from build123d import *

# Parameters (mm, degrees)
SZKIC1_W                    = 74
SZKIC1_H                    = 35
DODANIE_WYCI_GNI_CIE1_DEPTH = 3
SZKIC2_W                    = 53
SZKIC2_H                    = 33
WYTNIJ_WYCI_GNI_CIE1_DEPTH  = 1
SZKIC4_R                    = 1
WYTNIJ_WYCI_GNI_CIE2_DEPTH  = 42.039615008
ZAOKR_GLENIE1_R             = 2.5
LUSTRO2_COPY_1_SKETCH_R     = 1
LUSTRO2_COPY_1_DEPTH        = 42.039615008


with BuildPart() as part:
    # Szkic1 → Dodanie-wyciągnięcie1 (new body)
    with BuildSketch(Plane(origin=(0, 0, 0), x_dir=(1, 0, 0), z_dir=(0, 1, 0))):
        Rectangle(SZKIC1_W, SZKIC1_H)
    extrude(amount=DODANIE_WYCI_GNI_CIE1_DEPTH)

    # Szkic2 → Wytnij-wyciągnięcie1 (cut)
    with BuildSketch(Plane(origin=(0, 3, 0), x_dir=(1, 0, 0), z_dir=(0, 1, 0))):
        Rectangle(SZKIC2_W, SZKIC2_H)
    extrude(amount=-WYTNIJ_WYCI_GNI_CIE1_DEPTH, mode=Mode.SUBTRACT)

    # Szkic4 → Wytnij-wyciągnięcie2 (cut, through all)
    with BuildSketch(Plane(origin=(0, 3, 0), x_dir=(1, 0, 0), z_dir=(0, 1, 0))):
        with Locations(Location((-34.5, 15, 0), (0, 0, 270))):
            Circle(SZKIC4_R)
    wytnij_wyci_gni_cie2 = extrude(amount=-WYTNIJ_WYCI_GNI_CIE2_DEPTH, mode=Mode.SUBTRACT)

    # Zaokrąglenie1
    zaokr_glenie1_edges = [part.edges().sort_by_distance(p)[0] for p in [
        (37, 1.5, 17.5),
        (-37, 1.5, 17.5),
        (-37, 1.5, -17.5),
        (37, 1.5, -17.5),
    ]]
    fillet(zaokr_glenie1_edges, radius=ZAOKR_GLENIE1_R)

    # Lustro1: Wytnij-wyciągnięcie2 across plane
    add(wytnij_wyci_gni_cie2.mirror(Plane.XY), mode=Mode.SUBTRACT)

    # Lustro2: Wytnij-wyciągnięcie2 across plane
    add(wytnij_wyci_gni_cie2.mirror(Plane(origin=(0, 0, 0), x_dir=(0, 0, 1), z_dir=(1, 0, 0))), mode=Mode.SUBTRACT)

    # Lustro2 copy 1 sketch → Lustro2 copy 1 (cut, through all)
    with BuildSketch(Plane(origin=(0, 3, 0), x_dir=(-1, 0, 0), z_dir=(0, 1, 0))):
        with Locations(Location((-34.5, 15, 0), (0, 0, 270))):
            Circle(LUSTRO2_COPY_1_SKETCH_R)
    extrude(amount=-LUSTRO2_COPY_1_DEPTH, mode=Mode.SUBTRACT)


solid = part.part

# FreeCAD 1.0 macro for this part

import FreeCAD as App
import Part
import Sketcher
from FreeCAD import Vector


def edges_at(feature, points):
    """Names of the edges that pass closest to the given points."""
    edges = feature.Shape.Edges
    near = lambda p: min(range(len(edges)), key=lambda i: edges[i].distToShape(Part.Vertex(*p))[0])
    return sorted({f"Edge{near(p) + 1}" for p in points})


def add_polygon(sketch, points):
    """Adds a closed chain of lines whose ends are joined by coincident constraints."""
    first, n = sketch.GeometryCount, len(points)
    for a, b in zip(points, points[1:] + points[:1]):
        sketch.addGeometry(Part.LineSegment(App.Vector(*a, 0), App.Vector(*b, 0)), False)
    for i in range(n):
        sketch.addConstraint(Sketcher.Constraint("Coincident", first + i, 2, first + (i + 1) % n, 1))

doc = App.newDocument("Part")
body = doc.addObject("PartDesign::Body", "Body")

# Sketch on XZ plane
sketch1 = body.newObject("Sketcher::SketchObject", "Sketch")
sketch1.AttachmentSupport = (doc.getObject("XZ_Plane"), [""])
sketch1.MapMode = "FlatFace"
add_polygon(sketch1, [(-37, -18), (-37, 18), (37, 18), (37, -18)])  # lines 0-3
sketch1.addConstraint(Sketcher.Constraint("Vertical", 0))
sketch1.addConstraint(Sketcher.Constraint("Horizontal", 1))
sketch1.addConstraint(Sketcher.Constraint("Vertical", 2))
sketch1.addConstraint(Sketcher.Constraint("Horizontal", 3))
sketch1.addConstraint(Sketcher.Constraint("Symmetric", 0, 2, 2, 2, -1, 1))
sketch1.addConstraint(Sketcher.Constraint("DistanceX", 1, 1, 1, 2, 74.0))
sketch1.addConstraint(Sketcher.Constraint("DistanceY", 0, 1, 0, 2, 35.0))
pad1 = body.newObject("PartDesign::Pad", "Pad")
pad1.Profile = sketch1
pad1.Length = 3
pad1.Reversed = True

# Sketch on XZ plane
sketch2 = body.newObject("Sketcher::SketchObject", "Sketch001")
sketch2.AttachmentSupport = (doc.getObject("XZ_Plane"), [""])
sketch2.MapMode = "FlatFace"
sketch2.AttachmentOffset = App.Placement(Vector(0, 0, -3), App.Rotation())
add_polygon(sketch2, [(-26, -16), (-26, 16), (26, 16), (26, -16)])  # lines 0-3
sketch2.addConstraint(Sketcher.Constraint("Vertical", 0))
sketch2.addConstraint(Sketcher.Constraint("Horizontal", 1))
sketch2.addConstraint(Sketcher.Constraint("Vertical", 2))
sketch2.addConstraint(Sketcher.Constraint("Horizontal", 3))
sketch2.addConstraint(Sketcher.Constraint("Symmetric", 0, 2, 2, 2, -1, 1))
sketch2.addConstraint(Sketcher.Constraint("DistanceX", 1, 1, 1, 2, 53.0))
sketch2.addConstraint(Sketcher.Constraint("DistanceY", 0, 1, 0, 2, 33.0))
pocket1 = body.newObject("PartDesign::Pocket", "Pocket")
pocket1.Profile = sketch2
pocket1.Length = 1
pocket1.Reversed = True

# Sketch on XZ plane
sketch3 = body.newObject("Sketcher::SketchObject", "Sketch002")
sketch3.AttachmentSupport = (doc.getObject("XZ_Plane"), [""])
sketch3.MapMode = "FlatFace"
sketch3.AttachmentOffset = App.Placement(Vector(0, 0, -3), App.Rotation())
sketch3.addGeometry(Part.Circle(Vector(-34.5, -15, 0), Vector(0, 0, 1), 1), False)
sketch3.addConstraint(Sketcher.Constraint("Diameter", 0, 2.0))
sketch3.addConstraint(Sketcher.Constraint("DistanceY", 0, 3, -1, 1, 15.0))
sketch3.addConstraint(Sketcher.Constraint("DistanceX", 0, 3, -1, 1, 34.5))
pocket2 = body.newObject("PartDesign::Pocket", "Pocket001")
pocket2.Profile = sketch3
pocket2.Type = "ThroughAll"
pocket2.Reversed = True
doc.recompute()

fillet = body.newObject("PartDesign::Fillet", "Fillet")
fillet.Base = (pocket2, edges_at(pocket2, [
    (37, 1.5, 17.5),
    (-37, 1.5, 17.5),
    (-37, 1.5, -17.5),
    (37, 1.5, -17.5),
]))
fillet.Radius = 2.5
doc.recompute()

mirrored = body.newObject("PartDesign::Mirrored", "Mirrored")
mirrored.Originals = [pocket2]
mirrored.MirrorPlane = (doc.getObject("XY_Plane"), [""])
body.Tip = mirrored
doc.recompute()

mirrored2 = body.newObject("PartDesign::Mirrored", "Mirrored001")
mirrored2.Originals = [pocket2]
mirrored2.MirrorPlane = (doc.getObject("YZ_Plane"), [""])
body.Tip = mirrored2

# Sketch on XZ plane
sketch4 = body.newObject("Sketcher::SketchObject", "Sketch003")
sketch4.AttachmentSupport = (doc.getObject("XZ_Plane"), [""])
sketch4.MapMode = "FlatFace"
sketch4.AttachmentOffset = App.Placement(Vector(0, 0, -3), App.Rotation())
sketch4.addGeometry(Part.Circle(Vector(34.5, 15, 0), Vector(0, 0, 1), 1), False)
sketch4.addConstraint(Sketcher.Constraint("Diameter", 0, 2.0))
sketch4.addConstraint(Sketcher.Constraint("DistanceY", -1, 1, 0, 3, 15.0))
sketch4.addConstraint(Sketcher.Constraint("DistanceX", -1, 1, 0, 3, 34.5))
pocket3 = body.newObject("PartDesign::Pocket", "Pocket002")
pocket3.Profile = sketch4
pocket3.Type = "ThroughAll"
pocket3.Reversed = True

doc.recompute()
